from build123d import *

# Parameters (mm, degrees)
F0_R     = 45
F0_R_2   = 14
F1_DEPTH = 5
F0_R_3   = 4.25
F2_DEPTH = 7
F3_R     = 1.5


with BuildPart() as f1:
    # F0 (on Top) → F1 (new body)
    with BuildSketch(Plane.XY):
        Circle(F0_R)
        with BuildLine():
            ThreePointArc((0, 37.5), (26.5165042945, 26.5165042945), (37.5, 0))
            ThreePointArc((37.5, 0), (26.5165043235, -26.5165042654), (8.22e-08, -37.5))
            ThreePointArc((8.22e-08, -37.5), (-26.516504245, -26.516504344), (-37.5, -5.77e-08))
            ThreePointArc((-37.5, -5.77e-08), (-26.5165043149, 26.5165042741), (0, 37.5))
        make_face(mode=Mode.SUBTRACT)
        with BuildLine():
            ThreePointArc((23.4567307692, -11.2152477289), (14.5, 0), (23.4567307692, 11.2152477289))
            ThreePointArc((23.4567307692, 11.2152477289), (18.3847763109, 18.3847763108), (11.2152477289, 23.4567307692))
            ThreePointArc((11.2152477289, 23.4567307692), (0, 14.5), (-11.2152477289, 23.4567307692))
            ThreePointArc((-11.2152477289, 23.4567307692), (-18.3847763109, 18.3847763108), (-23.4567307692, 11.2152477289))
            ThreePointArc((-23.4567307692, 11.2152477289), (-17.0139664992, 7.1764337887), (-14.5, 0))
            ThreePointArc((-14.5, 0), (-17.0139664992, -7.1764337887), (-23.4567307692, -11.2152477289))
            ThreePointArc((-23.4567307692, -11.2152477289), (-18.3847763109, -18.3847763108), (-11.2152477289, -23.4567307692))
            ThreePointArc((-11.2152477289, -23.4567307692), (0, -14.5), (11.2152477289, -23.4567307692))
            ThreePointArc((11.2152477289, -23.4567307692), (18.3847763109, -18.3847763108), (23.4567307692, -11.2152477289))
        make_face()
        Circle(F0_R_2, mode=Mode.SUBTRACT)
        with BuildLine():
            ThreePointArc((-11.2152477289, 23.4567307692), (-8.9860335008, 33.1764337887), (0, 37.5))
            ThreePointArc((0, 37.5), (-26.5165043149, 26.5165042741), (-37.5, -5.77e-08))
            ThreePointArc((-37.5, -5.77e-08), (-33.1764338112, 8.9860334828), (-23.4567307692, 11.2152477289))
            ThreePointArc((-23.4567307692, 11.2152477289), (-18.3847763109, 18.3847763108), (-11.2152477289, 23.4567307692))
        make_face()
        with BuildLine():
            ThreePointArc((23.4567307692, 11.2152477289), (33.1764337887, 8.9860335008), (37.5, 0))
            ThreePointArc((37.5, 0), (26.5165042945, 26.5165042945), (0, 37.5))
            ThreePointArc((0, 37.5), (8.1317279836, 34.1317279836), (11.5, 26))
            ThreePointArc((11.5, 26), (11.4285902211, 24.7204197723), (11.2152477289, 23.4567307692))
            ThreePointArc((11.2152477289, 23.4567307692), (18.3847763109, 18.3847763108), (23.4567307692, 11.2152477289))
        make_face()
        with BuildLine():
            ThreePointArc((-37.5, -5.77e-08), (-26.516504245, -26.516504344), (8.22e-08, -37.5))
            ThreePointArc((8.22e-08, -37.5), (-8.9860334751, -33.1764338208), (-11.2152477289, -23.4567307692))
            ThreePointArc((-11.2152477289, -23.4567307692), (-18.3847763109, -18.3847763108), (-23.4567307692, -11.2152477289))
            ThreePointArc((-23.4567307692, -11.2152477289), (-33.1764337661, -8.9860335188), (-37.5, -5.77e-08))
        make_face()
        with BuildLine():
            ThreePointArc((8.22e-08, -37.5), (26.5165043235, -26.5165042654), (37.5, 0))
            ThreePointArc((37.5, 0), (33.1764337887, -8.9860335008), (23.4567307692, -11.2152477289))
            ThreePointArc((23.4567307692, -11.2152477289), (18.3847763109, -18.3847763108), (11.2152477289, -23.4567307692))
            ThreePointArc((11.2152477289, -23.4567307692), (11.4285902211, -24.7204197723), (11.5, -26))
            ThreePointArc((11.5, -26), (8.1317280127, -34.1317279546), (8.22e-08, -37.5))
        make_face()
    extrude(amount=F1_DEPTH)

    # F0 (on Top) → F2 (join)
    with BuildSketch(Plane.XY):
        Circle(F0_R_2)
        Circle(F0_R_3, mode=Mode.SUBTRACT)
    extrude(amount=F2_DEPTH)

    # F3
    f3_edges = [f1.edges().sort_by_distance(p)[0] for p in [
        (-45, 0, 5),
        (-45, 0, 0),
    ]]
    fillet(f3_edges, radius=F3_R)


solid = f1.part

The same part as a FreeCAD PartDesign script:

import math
import FreeCAD as App
import Part
import Sketcher

V = App.Vector
Q = App.Units.Quantity


def edges_at(feature, points):
    """Names of the edges that pass closest to the given points."""
    edges = feature.Shape.Edges
    near = lambda p: min(range(len(edges)), key=lambda i: edges[i].distToShape(Part.Vertex(*p))[0])
    return sorted({f"Edge{near(p) + 1}" for p in points})

doc = App.newDocument("Part")
body = doc.addObject("PartDesign::Body", "Body")

# Sketch on XY plane
sketch1 = body.newObject("Sketcher::SketchObject", "Sketch")
sketch1.AttachmentSupport = (doc.getObject("XY_Plane"), [""])
sketch1.MapMode = "FlatFace"
sketch1.addGeometry([
    Part.Circle(V(0, 0, 0), V(0, 0, 1), 45),  # 0
    Part.ArcOfCircle(Part.Circle(V(-26, 0, 0), V(0, 0, 1), 11.5), math.radians(77), math.radians(180)),  # 1
    Part.ArcOfCircle(Part.Circle(V(-26, 0, 0), V(0, 0, 1), 11.5), math.radians(0), math.radians(77)),  # 2
    Part.ArcOfCircle(Part.Circle(V(-26, 0, 0), V(0, 0, 1), 11.5), math.radians(-77), math.radians(0)),  # 3
    Part.ArcOfCircle(Part.Circle(V(-26, 0, 0), V(0, 0, 1), 11.5), math.radians(-180), math.radians(-77)),  # 4
    Part.ArcOfCircle(Part.Circle(V(0, -26, 0), V(0, 0, 1), 11.5), math.radians(13), math.radians(167)),  # 5
    Part.ArcOfCircle(Part.Circle(V(0, -26, 0), V(0, 0, 1), 11.5), math.radians(0), math.radians(12.78)),  # 6
    Part.ArcOfCircle(Part.Circle(V(0, -26, 0), V(0, 0, 1), 11.5), math.radians(-90), math.radians(0)),  # 7
    Part.ArcOfCircle(Part.Circle(V(0, -26, 0), V(0, 0, 1), 11.5), math.radians(167), math.radians(270)),  # 8
    Part.Circle(V(26, 0, 0), V(0, 0, 1), 11.5),  # 9
    Part.ArcOfCircle(Part.Circle(V(0, 26, 0), V(0, 0, 1), 11.5), math.radians(90), math.radians(347)),  # 10
    Part.ArcOfCircle(Part.Circle(V(0, 26, 0), V(0, 0, 1), 11.5), math.radians(0), math.radians(90)),  # 11
    Part.ArcOfCircle(Part.Circle(V(0, 26, 0), V(0, 0, 1), 11.5), math.radians(-12.78), math.radians(0)),  # 12
    Part.Circle(V(0, 0, 0), V(0, 0, 1), 14),  # 13
], False)
sketch1.addConstraint([
    Sketcher.Constraint("Tangent", 1, 1, 2, 2),
    Sketcher.Constraint("Tangent", 2, 1, 3, 2),
    Sketcher.Constraint("Tangent", 3, 1, 4, 2),
    Sketcher.Constraint("Tangent", 4, 1, 1, 2),
    Sketcher.Constraint("Tangent", 5, 1, 6, 2),
    Sketcher.Constraint("Tangent", 6, 1, 7, 2),
    Sketcher.Constraint("Tangent", 7, 1, 8, 2),
    Sketcher.Constraint("Tangent", 8, 1, 5, 2),
    Sketcher.Constraint("Tangent", 10, 1, 11, 2),
    Sketcher.Constraint("Tangent", 11, 1, 12, 2),
    Sketcher.Constraint("Tangent", 12, 1, 10, 2),
    Sketcher.Constraint("Coincident", 0, 3, -1, 1),
    Sketcher.Constraint("Coincident", 13, 3, -1, 1),
    Sketcher.Constraint("Equal", 1, 2),
    Sketcher.Constraint("Equal", 4, 5),
    Sketcher.Constraint("Equal", 5, 6),
    Sketcher.Constraint("Equal", 8, 9),
    Sketcher.Constraint("Equal", 9, 10),
    Sketcher.Constraint("Symmetric", 1, 3, 9, 3, -1, 1),
    Sketcher.Constraint("Symmetric", 5, 3, 10, 3, -1, 1),
    Sketcher.Constraint("Symmetric", 5, 1, 8, 1, -2),
    Sketcher.Constraint("Symmetric", 1, 1, 3, 1, -1),
    Sketcher.Constraint("PointOnObject", 2, 1, -1),
    Sketcher.Constraint("PointOnObject", 4, 1, -1),
    Sketcher.Constraint("PointOnObject", 7, 1, -2),
    Sketcher.Constraint("PointOnObject", 10, 1, -2),
    Sketcher.Constraint("Horizontal", 8, 3, 6, 1),
    Sketcher.Constraint("Horizontal", 12, 3, 11, 1),
    Sketcher.Constraint("Vertical", 5, 1, 12, 1),
    Sketcher.Constraint("Diameter", 0, Q("90 mm")),
    Sketcher.Constraint("Diameter", 9, Q("23 mm")),
    Sketcher.Constraint("Diameter", 13, Q("28 mm")),
    Sketcher.Constraint("DistanceX", 1, 3, -1, 1, Q("26 mm")),
    Sketcher.Constraint("DistanceY", 5, 3, -1, 1, Q("26 mm")),
    Sketcher.Constraint("DistanceX", 1, 1, -1, 1, Q("23.456731 mm")),
    Sketcher.Constraint("DistanceY", 5, 1, -1, 1, Q("23.456731 mm")),
])
pad1 = body.newObject("PartDesign::Pad", "Pad")
pad1.Profile = sketch1
pad1.Length = 5

# Sketch on XY plane
sketch2 = body.newObject("Sketcher::SketchObject", "Sketch001")
sketch2.AttachmentSupport = (doc.getObject("XY_Plane"), [""])
sketch2.MapMode = "FlatFace"
sketch2.addGeometry([
    Part.Circle(V(0, 0, 0), V(0, 0, 1), 14),
    Part.Circle(V(0, 0, 0), V(0, 0, 1), 4.2),
], False)
sketch2.addConstraint([
    Sketcher.Constraint("Coincident", 0, 3, -1, 1),
    Sketcher.Constraint("Coincident", 1, 3, -1, 1),
    Sketcher.Constraint("Diameter", 0, Q("28 mm")),
    Sketcher.Constraint("Diameter", 1, Q("8.5 mm")),
])
pad2 = body.newObject("PartDesign::Pad", "Pad001")
pad2.Profile = sketch2
pad2.Length = 7
doc.recompute()

fillet = body.newObject("PartDesign::Fillet", "Fillet")
fillet.Base = (pad2, edges_at(pad2, [(-45, 0, 5), (-45, 0, 0)]))
fillet.Radius = 1.5

doc.recompute()
